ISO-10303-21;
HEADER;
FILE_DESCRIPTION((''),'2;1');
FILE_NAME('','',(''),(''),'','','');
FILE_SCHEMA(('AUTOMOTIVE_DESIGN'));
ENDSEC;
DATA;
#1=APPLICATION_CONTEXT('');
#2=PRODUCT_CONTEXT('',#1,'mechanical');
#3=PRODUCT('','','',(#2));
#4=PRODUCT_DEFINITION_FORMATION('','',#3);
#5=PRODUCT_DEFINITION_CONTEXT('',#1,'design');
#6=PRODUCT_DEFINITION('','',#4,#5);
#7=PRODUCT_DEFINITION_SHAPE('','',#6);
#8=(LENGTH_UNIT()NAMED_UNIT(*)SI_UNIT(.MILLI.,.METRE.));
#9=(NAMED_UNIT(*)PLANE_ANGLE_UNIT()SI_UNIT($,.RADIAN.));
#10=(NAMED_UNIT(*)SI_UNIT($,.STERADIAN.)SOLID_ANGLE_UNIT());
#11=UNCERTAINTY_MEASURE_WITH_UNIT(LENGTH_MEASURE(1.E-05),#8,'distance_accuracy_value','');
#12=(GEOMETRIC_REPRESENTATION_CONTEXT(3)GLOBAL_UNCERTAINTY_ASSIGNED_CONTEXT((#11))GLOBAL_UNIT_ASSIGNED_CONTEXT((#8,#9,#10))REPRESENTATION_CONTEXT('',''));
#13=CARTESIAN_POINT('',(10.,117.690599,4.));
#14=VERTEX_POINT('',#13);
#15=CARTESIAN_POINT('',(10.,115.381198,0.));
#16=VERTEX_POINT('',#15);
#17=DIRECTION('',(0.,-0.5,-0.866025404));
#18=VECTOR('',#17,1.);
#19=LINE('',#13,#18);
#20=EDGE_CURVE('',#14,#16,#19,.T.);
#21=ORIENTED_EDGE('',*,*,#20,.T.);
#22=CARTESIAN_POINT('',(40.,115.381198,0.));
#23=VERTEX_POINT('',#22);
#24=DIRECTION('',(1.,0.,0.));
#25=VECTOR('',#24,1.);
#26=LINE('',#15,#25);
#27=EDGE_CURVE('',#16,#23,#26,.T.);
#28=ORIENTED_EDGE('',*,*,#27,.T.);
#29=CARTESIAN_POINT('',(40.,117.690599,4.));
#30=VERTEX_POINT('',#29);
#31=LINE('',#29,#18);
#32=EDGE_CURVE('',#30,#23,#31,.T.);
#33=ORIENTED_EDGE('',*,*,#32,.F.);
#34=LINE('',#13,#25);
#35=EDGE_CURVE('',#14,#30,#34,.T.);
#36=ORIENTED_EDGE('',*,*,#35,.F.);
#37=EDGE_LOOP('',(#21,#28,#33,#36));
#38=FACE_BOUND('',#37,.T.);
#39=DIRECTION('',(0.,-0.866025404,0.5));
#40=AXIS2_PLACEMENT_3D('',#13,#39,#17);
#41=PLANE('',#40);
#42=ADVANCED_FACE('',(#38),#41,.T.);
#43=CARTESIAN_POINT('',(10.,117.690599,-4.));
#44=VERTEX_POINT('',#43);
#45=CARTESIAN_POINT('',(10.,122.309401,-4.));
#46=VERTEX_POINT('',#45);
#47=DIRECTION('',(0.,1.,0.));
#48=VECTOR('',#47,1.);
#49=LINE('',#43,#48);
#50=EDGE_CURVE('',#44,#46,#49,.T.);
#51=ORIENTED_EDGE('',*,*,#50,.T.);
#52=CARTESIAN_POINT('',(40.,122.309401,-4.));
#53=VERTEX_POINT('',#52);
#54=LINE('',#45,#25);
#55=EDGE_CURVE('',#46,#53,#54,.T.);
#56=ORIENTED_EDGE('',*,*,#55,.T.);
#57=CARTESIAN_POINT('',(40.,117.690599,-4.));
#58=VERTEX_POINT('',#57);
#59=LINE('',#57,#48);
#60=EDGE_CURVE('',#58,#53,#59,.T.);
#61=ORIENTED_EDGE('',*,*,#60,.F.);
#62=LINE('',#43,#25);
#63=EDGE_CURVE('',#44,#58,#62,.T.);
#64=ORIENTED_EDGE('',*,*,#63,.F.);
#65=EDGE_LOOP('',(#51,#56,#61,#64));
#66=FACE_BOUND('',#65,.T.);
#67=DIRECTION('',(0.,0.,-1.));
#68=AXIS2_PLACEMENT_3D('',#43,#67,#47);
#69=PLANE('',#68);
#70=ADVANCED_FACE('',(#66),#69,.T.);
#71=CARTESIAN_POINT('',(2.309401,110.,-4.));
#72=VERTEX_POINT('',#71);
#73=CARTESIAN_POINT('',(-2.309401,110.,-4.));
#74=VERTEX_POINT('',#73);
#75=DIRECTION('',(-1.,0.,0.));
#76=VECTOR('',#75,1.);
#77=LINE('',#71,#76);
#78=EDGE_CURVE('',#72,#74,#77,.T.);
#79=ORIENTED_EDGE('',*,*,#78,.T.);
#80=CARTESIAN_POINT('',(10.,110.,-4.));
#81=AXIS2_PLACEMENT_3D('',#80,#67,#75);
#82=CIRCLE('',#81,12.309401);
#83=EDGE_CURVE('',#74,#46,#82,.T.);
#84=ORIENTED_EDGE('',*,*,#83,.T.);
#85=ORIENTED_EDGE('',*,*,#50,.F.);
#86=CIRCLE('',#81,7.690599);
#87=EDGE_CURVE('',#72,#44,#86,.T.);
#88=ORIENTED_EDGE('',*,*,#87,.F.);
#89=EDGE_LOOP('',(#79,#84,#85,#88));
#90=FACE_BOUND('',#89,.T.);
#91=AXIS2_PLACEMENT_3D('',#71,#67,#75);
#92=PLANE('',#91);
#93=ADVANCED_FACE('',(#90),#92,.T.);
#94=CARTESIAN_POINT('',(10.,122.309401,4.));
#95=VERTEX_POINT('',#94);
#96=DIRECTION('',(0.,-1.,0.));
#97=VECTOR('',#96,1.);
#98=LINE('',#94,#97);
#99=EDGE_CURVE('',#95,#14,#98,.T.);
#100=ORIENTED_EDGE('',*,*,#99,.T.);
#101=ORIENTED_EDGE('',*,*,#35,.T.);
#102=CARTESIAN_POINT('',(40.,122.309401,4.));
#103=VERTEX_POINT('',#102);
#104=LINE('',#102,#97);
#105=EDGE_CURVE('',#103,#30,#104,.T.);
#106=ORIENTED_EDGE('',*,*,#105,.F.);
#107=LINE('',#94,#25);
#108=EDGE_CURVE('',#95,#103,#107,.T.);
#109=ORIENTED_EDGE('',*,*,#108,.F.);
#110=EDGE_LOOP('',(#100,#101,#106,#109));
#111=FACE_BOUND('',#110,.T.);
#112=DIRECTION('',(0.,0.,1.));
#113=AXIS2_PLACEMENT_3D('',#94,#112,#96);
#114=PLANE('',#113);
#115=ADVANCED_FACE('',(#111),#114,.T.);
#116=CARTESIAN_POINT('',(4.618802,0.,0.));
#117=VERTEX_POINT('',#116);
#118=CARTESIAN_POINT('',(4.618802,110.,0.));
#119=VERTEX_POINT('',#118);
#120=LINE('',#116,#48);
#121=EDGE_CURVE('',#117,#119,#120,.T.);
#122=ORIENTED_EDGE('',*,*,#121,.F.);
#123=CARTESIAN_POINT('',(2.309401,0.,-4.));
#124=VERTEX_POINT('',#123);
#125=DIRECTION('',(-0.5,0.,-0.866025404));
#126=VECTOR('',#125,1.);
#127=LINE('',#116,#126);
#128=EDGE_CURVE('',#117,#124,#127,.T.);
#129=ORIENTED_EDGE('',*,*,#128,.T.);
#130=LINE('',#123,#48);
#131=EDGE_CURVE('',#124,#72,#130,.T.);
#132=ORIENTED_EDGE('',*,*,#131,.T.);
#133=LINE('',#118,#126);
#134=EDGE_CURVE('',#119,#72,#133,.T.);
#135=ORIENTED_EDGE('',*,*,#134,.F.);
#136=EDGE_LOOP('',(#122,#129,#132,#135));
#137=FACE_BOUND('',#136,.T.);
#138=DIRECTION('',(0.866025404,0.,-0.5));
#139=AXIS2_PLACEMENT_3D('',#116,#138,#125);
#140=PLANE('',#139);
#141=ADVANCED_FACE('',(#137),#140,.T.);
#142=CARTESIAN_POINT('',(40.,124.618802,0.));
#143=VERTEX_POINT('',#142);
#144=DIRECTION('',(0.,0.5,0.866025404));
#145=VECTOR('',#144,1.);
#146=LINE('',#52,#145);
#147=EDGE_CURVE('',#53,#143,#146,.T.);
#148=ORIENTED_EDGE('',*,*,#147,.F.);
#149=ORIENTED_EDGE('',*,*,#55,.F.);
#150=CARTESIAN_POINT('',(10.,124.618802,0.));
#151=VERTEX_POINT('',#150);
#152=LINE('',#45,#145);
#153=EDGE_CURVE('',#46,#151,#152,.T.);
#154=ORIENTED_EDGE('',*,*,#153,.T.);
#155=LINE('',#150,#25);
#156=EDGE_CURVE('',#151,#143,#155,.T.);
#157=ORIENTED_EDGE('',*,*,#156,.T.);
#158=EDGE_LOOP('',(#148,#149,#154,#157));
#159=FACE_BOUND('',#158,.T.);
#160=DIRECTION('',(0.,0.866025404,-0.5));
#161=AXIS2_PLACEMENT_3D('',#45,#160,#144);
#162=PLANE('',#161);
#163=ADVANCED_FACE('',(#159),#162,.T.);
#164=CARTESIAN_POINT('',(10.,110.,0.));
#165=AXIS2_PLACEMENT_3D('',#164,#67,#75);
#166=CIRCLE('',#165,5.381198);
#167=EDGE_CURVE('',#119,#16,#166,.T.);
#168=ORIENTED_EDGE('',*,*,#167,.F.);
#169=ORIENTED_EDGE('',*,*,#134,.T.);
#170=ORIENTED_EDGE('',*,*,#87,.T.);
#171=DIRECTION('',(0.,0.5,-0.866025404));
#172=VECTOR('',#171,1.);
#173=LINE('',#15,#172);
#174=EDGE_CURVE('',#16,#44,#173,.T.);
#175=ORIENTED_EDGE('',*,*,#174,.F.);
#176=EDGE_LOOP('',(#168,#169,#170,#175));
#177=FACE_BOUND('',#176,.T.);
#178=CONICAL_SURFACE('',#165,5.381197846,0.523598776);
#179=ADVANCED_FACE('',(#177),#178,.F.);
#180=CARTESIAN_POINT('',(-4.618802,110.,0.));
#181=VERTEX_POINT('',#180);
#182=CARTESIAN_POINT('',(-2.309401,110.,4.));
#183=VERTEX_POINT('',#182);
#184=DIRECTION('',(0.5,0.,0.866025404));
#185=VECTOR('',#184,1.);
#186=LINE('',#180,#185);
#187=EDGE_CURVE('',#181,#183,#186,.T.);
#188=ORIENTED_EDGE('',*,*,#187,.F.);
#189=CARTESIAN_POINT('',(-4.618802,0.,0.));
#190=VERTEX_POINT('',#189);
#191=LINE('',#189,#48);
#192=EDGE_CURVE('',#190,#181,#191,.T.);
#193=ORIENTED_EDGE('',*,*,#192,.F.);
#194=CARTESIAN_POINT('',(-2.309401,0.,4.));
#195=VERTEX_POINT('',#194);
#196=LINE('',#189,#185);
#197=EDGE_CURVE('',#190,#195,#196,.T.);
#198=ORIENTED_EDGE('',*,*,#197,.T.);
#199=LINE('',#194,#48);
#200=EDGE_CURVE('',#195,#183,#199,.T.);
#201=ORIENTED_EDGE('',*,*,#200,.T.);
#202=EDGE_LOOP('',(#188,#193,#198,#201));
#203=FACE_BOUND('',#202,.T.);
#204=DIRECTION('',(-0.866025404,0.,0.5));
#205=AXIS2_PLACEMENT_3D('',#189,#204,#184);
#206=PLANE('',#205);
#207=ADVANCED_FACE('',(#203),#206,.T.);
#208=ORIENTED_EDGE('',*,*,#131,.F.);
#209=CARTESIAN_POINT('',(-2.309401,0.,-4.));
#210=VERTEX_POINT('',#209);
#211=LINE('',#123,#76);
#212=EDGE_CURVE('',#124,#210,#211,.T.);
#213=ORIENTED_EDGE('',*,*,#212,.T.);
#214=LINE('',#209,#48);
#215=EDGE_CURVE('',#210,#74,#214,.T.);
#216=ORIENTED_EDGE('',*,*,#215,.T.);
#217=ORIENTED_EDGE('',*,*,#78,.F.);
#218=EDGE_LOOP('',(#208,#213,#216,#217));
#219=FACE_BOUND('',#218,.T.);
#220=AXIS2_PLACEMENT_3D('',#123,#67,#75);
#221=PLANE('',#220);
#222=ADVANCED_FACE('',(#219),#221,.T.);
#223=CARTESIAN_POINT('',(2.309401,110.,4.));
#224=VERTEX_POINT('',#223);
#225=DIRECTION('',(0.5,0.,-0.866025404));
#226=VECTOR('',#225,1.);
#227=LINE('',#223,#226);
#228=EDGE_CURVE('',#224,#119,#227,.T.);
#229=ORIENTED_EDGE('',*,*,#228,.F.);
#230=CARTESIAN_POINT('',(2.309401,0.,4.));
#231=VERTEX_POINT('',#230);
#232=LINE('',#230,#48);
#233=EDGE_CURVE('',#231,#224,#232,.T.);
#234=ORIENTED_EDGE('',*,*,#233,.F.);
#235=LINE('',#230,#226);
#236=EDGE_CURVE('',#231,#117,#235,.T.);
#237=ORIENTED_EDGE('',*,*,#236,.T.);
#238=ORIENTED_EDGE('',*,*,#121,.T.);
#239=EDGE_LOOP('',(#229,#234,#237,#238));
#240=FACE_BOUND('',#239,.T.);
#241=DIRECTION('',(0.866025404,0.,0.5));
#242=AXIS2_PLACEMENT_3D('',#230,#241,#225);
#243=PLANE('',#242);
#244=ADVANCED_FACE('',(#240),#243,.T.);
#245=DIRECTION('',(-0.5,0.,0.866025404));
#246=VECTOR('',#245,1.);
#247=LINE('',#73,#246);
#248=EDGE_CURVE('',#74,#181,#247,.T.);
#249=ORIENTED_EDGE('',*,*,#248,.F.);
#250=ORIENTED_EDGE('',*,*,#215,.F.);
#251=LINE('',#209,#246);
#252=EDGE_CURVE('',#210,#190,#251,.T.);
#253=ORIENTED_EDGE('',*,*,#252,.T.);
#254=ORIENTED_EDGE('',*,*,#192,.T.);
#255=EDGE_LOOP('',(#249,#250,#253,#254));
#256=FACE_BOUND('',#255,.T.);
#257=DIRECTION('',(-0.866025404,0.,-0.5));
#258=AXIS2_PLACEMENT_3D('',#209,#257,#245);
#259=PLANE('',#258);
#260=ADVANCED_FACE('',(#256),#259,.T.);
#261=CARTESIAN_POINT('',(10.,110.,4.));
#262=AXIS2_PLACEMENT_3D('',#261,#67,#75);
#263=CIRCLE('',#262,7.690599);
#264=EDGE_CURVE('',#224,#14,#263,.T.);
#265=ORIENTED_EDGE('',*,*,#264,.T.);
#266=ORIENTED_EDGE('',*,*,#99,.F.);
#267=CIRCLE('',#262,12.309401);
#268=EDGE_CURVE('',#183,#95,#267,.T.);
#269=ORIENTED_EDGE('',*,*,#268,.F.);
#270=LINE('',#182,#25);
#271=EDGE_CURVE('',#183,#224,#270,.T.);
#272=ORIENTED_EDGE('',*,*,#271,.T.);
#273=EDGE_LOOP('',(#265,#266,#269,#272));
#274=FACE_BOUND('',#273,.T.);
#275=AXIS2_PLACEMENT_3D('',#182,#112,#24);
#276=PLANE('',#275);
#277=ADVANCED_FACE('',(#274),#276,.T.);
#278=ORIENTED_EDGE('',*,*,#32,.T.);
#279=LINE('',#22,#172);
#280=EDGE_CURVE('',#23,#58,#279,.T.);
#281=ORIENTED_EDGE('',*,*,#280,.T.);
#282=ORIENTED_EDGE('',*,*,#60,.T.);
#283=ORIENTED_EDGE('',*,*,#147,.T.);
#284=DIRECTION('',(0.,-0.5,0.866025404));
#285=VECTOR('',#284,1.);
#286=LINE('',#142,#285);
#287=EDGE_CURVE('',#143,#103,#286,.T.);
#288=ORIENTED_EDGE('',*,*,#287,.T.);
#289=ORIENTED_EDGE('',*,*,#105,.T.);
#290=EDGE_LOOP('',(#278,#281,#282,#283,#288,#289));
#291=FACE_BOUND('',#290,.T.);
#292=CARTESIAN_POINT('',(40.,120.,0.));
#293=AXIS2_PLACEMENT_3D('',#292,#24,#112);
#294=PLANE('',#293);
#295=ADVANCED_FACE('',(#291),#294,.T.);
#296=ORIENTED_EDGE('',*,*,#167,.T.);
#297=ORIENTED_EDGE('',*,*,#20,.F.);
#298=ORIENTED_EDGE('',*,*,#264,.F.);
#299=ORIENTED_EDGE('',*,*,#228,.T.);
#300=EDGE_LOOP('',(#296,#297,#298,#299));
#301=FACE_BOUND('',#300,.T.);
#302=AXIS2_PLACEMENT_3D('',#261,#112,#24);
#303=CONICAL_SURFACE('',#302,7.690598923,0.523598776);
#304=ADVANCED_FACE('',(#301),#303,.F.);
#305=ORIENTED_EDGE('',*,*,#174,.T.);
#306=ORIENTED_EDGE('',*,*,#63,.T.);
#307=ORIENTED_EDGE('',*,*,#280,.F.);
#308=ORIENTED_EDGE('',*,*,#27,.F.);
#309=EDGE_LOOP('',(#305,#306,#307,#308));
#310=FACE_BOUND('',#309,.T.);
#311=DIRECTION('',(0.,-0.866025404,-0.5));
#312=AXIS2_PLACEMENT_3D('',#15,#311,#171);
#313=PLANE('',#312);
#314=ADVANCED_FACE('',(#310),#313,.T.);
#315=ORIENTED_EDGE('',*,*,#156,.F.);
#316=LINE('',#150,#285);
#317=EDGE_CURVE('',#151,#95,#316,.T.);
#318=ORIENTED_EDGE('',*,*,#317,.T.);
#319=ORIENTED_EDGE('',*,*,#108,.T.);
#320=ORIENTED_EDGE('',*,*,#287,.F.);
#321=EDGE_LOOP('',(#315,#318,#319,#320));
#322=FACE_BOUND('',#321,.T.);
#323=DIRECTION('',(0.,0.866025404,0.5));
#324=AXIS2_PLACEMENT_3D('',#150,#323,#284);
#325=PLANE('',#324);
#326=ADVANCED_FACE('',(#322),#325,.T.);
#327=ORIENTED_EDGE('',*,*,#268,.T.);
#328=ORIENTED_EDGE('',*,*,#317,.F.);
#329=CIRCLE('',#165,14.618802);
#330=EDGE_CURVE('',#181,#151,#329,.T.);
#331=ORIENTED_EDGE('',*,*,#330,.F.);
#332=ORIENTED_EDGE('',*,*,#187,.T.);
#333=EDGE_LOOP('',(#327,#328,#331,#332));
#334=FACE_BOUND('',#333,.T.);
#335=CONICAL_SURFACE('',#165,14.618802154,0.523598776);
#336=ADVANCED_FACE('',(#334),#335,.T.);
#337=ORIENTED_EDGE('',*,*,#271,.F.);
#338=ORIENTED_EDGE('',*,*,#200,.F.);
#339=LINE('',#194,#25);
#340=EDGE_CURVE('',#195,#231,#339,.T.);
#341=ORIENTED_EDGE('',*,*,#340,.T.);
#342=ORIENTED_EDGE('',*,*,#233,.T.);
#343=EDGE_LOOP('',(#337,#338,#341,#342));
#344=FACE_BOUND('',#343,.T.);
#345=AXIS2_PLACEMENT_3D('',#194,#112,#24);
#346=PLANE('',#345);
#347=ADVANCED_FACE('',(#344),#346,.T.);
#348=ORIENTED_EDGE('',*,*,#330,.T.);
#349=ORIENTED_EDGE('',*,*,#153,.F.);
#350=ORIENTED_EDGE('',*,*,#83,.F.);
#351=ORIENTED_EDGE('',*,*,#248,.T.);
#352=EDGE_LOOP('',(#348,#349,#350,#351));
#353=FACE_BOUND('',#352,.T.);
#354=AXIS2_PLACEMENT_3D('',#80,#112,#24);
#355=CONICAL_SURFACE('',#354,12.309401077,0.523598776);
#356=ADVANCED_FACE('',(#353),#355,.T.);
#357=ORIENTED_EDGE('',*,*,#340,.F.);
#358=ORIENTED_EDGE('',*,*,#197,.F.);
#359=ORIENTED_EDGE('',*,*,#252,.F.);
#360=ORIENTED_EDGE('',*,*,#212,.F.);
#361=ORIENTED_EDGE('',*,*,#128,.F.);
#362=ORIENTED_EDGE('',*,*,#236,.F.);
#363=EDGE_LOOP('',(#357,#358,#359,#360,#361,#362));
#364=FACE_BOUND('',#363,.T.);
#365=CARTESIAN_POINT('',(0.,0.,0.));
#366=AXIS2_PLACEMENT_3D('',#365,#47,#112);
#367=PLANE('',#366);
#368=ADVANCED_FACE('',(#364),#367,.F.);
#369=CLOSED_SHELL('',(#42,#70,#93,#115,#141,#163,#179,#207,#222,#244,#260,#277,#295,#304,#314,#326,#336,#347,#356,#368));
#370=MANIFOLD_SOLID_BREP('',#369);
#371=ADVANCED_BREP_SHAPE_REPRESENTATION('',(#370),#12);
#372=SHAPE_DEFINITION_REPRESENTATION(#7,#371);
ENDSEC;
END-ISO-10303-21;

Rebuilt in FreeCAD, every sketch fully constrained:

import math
import FreeCAD as App
import Part
import Sketcher
from FreeCAD import Vector
Q = App.Units.Quantity

doc = App.newDocument("Part")
body = doc.addObject("PartDesign::Body", "Body")

# Sketch on XZ plane
sketch1 = body.newObject("Sketcher::SketchObject", "Sketch")
sketch1.AttachmentSupport = (doc.getObject("XZ_Plane"), [""])
sketch1.MapMode = "FlatFace"
sketch1.addGeometry([
    Part.LineSegment(Vector(4.6, 0, 0), Vector(2.3, -4, 0)),  # 0
    Part.LineSegment(Vector(2.3, -4, 0), Vector(-2.3, -4, 0)),  # 1
    Part.LineSegment(Vector(-2.3, -4, 0), Vector(-4.6, 0, 0)),  # 2
    Part.LineSegment(Vector(-4.6, 0, 0), Vector(-2.3, 4, 0)),  # 3
    Part.LineSegment(Vector(-2.3, 4, 0), Vector(2.3, 4, 0)),  # 4
    Part.LineSegment(Vector(2.3, 4, 0), Vector(4.6, 0, 0)),  # 5
], False)
sketch1.addConstraint([
    Sketcher.Constraint("Coincident", 0, 2, 1, 1),
    Sketcher.Constraint("Coincident", 1, 2, 2, 1),
    Sketcher.Constraint("Coincident", 2, 2, 3, 1),
    Sketcher.Constraint("Coincident", 3, 2, 4, 1),
    Sketcher.Constraint("Coincident", 4, 2, 5, 1),
    Sketcher.Constraint("Coincident", 5, 2, 0, 1),
    Sketcher.Constraint("Horizontal", 1),
    Sketcher.Constraint("Horizontal", 4),
    Sketcher.Constraint("Symmetric", 0, 2, 3, 2, -1, 1),
    Sketcher.Constraint("Symmetric", 2, 2, 5, 2, -1, 1),
    Sketcher.Constraint("PointOnObject", 2, 2, -1),
    Sketcher.Constraint("Parallel", 2, 5),
    Sketcher.Constraint("Vertical", 1, 2, 3, 2),
    Sketcher.Constraint("Angle", 0, Q("-120 deg")),
    Sketcher.Constraint("DistanceY", 0, 2, -1, 1, 4.0),
    Sketcher.Constraint("DistanceX", -1, 1, 0, 2, 2.309401),
])

# Sketch on XY plane
sketch2 = body.newObject("Sketcher::SketchObject", "Sketch001")
sketch2.AttachmentSupport = (doc.getObject("XY_Plane"), [""])
sketch2.MapMode = "FlatFace"
sketch2.addGeometry([
    Part.LineSegment(Vector(0, 0, 0), Vector(0, 110, 0)),
    Part.ArcOfCircle(Part.Circle(Vector(10, 110, 0), Vector(0, 0, 1), 10), math.radians(90), math.radians(180)),
    Part.LineSegment(Vector(10, 120, 0), Vector(40, 120, 0)),
], False)
sketch2.addConstraint([
    Sketcher.Constraint("Tangent", 0, 2, 1, 2),
    Sketcher.Constraint("Tangent", 1, 1, 2, 1),
    Sketcher.Constraint("Vertical", 0),
    Sketcher.Constraint("Horizontal", 2),
    Sketcher.Constraint("Coincident", 0, 1, -1, 1),
    Sketcher.Constraint("Radius", 1, 10.0),
    Sketcher.Constraint("DistanceX", 2, 1, 2, 2, 30.0),
    Sketcher.Constraint("DistanceY", 0, 1, 0, 2, 110.0),
])
doc.recompute()

additivepipe = body.newObject("PartDesign::AdditivePipe", "AdditivePipe")
additivepipe.Profile = sketch1
additivepipe.Spine = (sketch2, ["Edge1", "Edge2", "Edge3"])

doc.recompute()
